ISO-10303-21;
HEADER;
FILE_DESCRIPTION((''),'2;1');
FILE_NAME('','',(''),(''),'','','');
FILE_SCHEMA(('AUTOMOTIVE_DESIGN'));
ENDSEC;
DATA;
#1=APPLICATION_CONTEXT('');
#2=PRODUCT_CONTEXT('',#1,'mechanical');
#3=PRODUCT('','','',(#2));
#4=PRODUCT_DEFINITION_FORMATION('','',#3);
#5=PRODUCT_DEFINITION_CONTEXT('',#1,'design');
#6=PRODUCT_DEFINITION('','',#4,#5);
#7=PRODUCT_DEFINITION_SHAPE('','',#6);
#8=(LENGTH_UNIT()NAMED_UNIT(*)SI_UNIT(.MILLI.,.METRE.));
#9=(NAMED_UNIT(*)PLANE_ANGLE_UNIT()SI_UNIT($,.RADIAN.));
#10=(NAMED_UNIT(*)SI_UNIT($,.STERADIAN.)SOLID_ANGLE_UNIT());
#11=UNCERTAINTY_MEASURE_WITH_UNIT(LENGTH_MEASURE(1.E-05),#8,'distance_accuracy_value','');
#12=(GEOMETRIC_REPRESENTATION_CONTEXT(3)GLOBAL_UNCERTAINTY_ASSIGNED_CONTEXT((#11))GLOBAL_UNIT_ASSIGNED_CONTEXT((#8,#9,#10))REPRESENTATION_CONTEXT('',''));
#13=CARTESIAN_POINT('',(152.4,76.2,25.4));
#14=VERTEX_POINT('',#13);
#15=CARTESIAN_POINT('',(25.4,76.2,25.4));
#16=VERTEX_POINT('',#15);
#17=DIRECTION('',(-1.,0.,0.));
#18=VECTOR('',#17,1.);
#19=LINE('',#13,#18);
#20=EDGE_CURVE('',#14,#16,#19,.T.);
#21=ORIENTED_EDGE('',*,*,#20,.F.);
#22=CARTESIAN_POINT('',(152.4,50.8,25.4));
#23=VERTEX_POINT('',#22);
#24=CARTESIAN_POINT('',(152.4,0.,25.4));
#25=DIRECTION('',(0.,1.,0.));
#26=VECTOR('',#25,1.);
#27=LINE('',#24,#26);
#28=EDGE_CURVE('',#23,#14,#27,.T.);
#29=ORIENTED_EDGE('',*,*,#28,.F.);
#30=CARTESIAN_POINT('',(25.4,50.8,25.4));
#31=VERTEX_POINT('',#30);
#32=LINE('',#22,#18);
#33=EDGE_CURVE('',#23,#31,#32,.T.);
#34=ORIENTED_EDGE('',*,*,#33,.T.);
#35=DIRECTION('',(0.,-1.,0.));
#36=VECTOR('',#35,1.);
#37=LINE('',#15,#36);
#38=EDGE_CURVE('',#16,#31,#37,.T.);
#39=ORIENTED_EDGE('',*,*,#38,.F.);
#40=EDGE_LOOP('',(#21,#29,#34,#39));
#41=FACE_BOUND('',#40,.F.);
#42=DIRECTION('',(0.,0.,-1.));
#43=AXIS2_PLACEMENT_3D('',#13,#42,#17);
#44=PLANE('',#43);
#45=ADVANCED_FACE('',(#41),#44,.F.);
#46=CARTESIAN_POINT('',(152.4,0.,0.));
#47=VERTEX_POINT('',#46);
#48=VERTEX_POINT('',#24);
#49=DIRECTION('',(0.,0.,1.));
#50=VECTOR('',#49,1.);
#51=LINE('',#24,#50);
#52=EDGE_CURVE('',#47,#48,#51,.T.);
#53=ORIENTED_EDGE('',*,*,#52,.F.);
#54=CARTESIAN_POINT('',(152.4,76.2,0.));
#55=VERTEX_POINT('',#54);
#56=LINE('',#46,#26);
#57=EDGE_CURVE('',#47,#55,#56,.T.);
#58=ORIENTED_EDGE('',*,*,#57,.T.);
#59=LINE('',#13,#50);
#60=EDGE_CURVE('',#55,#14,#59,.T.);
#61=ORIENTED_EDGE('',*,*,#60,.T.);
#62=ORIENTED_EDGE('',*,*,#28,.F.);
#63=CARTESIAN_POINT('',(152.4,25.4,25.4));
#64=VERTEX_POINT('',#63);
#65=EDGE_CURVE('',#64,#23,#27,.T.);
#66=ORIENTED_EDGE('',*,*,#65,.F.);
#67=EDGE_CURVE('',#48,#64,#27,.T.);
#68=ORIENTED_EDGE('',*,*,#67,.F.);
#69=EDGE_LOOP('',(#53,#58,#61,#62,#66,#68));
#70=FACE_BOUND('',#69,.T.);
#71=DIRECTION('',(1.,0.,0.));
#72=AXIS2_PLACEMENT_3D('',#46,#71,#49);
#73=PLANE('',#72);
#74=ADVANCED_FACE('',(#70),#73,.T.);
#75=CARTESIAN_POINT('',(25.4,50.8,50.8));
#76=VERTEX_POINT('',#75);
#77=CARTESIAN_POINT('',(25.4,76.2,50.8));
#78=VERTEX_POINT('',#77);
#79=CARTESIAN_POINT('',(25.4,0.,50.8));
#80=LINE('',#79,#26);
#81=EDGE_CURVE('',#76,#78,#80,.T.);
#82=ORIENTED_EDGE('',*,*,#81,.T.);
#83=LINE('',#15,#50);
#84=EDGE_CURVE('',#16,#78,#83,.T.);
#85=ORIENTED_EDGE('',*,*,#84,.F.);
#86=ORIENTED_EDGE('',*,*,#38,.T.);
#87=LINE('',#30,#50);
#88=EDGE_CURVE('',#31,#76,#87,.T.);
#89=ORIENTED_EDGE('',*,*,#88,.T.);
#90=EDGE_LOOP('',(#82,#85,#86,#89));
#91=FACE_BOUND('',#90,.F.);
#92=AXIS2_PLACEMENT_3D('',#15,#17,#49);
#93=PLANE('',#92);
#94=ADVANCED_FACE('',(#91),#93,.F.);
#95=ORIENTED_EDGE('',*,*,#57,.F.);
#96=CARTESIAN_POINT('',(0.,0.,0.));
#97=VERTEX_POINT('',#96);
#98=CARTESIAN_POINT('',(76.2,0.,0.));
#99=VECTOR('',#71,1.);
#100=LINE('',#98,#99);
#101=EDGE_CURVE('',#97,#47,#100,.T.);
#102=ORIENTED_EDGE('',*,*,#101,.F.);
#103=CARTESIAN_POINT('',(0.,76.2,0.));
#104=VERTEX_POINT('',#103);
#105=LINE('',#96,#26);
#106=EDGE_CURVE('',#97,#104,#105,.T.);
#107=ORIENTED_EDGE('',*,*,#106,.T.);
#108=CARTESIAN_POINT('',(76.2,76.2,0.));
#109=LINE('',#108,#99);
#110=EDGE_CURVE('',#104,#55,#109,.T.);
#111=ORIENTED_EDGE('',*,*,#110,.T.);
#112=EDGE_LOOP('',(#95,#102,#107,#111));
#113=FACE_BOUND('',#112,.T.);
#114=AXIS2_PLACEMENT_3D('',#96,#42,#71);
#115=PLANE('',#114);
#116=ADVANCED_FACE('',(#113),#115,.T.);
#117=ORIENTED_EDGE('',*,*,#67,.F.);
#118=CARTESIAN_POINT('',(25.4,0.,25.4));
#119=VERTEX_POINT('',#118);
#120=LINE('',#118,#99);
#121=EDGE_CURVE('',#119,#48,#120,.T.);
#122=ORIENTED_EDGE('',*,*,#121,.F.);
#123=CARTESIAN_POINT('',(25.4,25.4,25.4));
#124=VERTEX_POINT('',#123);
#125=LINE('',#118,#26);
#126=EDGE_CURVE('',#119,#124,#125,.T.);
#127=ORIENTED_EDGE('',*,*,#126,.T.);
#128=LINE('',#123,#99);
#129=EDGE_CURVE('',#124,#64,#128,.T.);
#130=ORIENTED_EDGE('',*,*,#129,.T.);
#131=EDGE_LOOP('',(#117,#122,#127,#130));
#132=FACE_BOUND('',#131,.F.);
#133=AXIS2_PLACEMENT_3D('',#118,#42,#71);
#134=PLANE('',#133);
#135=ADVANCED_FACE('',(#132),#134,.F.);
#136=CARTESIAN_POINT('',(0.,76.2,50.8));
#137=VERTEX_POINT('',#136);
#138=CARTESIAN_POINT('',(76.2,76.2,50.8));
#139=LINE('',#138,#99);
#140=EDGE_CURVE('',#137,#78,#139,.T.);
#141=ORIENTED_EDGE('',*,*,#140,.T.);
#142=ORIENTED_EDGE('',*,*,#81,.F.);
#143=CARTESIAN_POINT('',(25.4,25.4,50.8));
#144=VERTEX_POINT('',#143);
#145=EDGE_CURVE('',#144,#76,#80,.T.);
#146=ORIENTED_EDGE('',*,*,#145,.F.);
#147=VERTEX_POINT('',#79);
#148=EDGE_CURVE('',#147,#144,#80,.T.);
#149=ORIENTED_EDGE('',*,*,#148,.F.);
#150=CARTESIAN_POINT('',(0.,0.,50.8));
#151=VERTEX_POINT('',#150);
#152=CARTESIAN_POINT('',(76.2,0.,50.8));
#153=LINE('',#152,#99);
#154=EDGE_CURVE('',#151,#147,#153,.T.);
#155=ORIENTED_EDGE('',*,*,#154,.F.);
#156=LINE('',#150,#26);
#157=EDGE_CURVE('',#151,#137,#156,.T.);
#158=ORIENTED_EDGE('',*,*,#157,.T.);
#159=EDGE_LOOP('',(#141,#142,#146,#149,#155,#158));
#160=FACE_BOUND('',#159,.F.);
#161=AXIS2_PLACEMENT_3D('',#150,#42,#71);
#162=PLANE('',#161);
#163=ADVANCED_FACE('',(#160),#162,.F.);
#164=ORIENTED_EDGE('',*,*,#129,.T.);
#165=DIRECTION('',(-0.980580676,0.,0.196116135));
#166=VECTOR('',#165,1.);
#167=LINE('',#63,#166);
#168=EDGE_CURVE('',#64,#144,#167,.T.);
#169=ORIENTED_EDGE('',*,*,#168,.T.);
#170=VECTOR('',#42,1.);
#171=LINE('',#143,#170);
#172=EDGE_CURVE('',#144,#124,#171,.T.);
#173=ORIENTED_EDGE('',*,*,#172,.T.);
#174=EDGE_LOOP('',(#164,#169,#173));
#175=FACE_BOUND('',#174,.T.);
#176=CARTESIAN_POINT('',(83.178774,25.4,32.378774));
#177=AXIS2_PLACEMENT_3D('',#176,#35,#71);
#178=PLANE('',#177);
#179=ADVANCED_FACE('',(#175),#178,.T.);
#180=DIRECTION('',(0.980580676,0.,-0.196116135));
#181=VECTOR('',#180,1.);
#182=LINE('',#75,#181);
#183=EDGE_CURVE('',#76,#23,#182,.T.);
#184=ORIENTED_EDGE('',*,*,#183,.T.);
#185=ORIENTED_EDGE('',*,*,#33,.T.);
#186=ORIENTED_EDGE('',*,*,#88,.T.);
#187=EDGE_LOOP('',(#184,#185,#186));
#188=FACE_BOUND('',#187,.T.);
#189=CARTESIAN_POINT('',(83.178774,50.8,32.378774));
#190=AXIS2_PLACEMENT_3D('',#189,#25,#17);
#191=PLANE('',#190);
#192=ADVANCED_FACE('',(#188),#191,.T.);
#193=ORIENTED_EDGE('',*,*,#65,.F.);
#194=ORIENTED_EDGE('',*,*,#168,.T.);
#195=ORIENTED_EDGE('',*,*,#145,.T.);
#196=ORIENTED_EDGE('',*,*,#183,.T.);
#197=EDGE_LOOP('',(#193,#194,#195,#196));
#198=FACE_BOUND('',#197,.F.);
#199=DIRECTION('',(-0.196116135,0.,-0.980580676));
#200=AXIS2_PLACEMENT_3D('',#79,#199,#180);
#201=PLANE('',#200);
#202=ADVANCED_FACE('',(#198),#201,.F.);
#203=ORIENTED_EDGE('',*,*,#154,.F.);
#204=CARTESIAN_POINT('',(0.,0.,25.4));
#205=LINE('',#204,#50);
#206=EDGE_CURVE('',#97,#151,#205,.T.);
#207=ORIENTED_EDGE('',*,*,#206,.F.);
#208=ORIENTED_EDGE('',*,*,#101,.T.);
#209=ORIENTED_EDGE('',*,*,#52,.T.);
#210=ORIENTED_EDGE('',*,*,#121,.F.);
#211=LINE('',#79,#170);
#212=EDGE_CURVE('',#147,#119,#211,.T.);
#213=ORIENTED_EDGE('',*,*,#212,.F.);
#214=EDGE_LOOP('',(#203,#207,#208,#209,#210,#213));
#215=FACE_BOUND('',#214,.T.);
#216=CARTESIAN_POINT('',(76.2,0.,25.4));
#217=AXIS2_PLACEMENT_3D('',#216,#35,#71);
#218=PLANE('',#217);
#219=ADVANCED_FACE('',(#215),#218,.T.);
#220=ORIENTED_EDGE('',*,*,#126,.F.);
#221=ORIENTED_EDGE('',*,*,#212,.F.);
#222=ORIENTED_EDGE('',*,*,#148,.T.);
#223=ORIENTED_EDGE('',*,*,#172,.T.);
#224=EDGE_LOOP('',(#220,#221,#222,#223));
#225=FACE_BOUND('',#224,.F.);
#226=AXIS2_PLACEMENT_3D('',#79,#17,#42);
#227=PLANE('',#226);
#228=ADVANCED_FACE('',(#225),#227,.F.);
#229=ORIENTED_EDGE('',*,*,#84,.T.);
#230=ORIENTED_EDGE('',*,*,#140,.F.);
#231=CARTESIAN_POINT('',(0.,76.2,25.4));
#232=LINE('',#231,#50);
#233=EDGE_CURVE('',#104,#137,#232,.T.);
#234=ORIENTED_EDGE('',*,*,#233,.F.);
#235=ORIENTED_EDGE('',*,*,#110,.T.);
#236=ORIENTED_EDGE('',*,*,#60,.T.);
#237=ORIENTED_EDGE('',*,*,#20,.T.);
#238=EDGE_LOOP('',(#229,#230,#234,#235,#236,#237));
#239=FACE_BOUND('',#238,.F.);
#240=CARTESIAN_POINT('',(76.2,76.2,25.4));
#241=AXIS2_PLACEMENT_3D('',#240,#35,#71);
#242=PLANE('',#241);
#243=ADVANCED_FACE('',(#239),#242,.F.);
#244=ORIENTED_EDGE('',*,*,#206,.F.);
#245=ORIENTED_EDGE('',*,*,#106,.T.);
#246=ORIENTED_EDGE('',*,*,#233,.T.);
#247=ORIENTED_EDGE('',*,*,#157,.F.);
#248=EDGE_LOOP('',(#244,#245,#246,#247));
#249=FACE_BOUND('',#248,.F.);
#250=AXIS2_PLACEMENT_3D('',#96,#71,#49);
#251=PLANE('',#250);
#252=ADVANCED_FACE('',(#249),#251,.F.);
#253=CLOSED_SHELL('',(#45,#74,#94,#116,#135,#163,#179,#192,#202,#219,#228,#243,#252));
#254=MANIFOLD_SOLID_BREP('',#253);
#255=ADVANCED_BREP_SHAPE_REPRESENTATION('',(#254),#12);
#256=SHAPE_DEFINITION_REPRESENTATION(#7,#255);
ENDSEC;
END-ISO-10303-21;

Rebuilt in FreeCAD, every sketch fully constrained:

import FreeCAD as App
import Part
import Sketcher
from FreeCAD import Vector
Q = App.Units.Quantity

doc = App.newDocument("Part")
body = doc.addObject("PartDesign::Body", "Body")

sketch1 = doc.addObject("Sketcher::SketchObject", "Sketch")
body.addObject(sketch1)
sketch1.AttachmentSupport = (doc.XZ_Plane, [""])
sketch1.MapMode = "FlatFace"
sketch1.addGeometry([
    Part.LineSegment(Vector(0, 50.8, 0), Vector(0, 0, 0)),
    Part.LineSegment(Vector(0, 0, 0), Vector(152.4, 0, 0)),
    Part.LineSegment(Vector(152.4, 0, 0), Vector(152.4, 50.8, 0)),
    Part.LineSegment(Vector(152.4, 50.8, 0), Vector(0, 50.8, 0)),
], False)
sketch1.addConstraint([
    Sketcher.Constraint("Coincident", 0, 2, 1, 1),
    Sketcher.Constraint("Coincident", 1, 2, 2, 1),
    Sketcher.Constraint("Coincident", 2, 2, 3, 1),
    Sketcher.Constraint("Coincident", 3, 2, 0, 1),
    Sketcher.Constraint("Vertical", 0),
    Sketcher.Constraint("Horizontal", 1),
    Sketcher.Constraint("Vertical", 2),
    Sketcher.Constraint("Horizontal", 3),
    Sketcher.Constraint("Coincident", 0, 2, -1, 1),
    Sketcher.Constraint("DistanceX", 1, 1, 1, 2, Q("6 in")),
    Sketcher.Constraint("DistanceY", 0, 2, 0, 1, Q("2 in")),
])
pad1 = doc.addObject("PartDesign::Pad", "Pad")
body.addObject(pad1)
pad1.Profile = sketch1
pad1.Length = Q("3 in")
pad1.Reversed = True

sketch2 = doc.addObject("Sketcher::SketchObject", "Sketch001")
body.addObject(sketch2)
sketch2.AttachmentSupport = (doc.XZ_Plane, [""])
sketch2.MapMode = "FlatFace"
sketch2.addGeometry([
    Part.LineSegment(Vector(152.4, 50.8, 0), Vector(25.4, 50.8, 0)),
    Part.LineSegment(Vector(25.4, 50.8, 0), Vector(152.4, 25.4, 0)),
    Part.LineSegment(Vector(152.4, 25.4, 0), Vector(152.4, 50.8, 0)),
], False)
sketch2.addConstraint([
    Sketcher.Constraint("Coincident", 0, 2, 1, 1),
    Sketcher.Constraint("Coincident", 1, 2, 2, 1),
    Sketcher.Constraint("Coincident", 2, 2, 0, 1),
    Sketcher.Constraint("Horizontal", 0),
    Sketcher.Constraint("Vertical", 2),
    Sketcher.Constraint("DistanceX", 0, 2, 0, 1, Q("5 in")),
    Sketcher.Constraint("DistanceY", 2, 1, 2, 2, Q("1 in")),
    Sketcher.Constraint("DistanceX", -1, 1, 0, 2, Q("1 in")),
    Sketcher.Constraint("DistanceY", -1, 1, 0, 2, Q("2 in")),
])
pocket1 = doc.addObject("PartDesign::Pocket", "Pocket")
body.addObject(pocket1)
pocket1.Profile = sketch2
pocket1.Length = Q("3 in")

sketch3 = doc.addObject("Sketcher::SketchObject", "Sketch002")
body.addObject(sketch3)
sketch3.AttachmentSupport = (doc.XZ_Plane, [""])
sketch3.MapMode = "FlatFace"
sketch3.addGeometry([
    Part.LineSegment(Vector(152.4, 25.4, 0), Vector(25.4, 50.8, 0)),
    Part.LineSegment(Vector(25.4, 50.8, 0), Vector(25.4, 25.4, 0)),
    Part.LineSegment(Vector(25.4, 25.4, 0), Vector(152.4, 25.4, 0)),
], False)
sketch3.addConstraint([
    Sketcher.Constraint("Coincident", 0, 2, 1, 1),
    Sketcher.Constraint("Coincident", 1, 2, 2, 1),
    Sketcher.Constraint("Coincident", 2, 2, 0, 1),
    Sketcher.Constraint("Vertical", 1),
    Sketcher.Constraint("Horizontal", 2),
    Sketcher.Constraint("DistanceX", 2, 1, 2, 2, Q("5 in")),
    Sketcher.Constraint("DistanceY", 1, 2, 1, 1, Q("1 in")),
    Sketcher.Constraint("DistanceX", -1, 1, 0, 2, Q("1 in")),
    Sketcher.Constraint("DistanceY", -1, 1, 0, 2, Q("2 in")),
])
pocket2 = doc.addObject("PartDesign::Pocket", "Pocket001")
body.addObject(pocket2)
pocket2.Profile = sketch3
pocket2.Length = Q("1 in")

sketch4 = doc.addObject("Sketcher::SketchObject", "Sketch003")
body.addObject(sketch4)
sketch4.AttachmentSupport = (doc.XZ_Plane, [""])
sketch4.MapMode = "FlatFace"
sketch4.AttachmentOffset = App.Placement(Vector(0, 0, -3 * 25.4), App.Rotation())
sketch4.addGeometry([
    Part.LineSegment(Vector(25.4, 25.4, 0), Vector(25.4, 50.8, 0)),
    Part.LineSegment(Vector(25.4, 50.8, 0), Vector(152.4, 25.4, 0)),
    Part.LineSegment(Vector(152.4, 25.4, 0), Vector(25.4, 25.4, 0)),
], False)
sketch4.addConstraint([
    Sketcher.Constraint("Coincident", 0, 2, 1, 1),
    Sketcher.Constraint("Coincident", 1, 2, 2, 1),
    Sketcher.Constraint("Coincident", 2, 2, 0, 1),
    Sketcher.Constraint("Vertical", 0),
    Sketcher.Constraint("Horizontal", 2),
    Sketcher.Constraint("DistanceX", 2, 2, 2, 1, Q("5 in")),
    Sketcher.Constraint("DistanceY", 0, 1, 0, 2, Q("1 in")),
    Sketcher.Constraint("DistanceX", -1, 1, 0, 2, Q("1 in")),
    Sketcher.Constraint("DistanceY", -1, 1, 0, 2, Q("2 in")),
])
pocket3 = doc.addObject("PartDesign::Pocket", "Pocket002")
body.addObject(pocket3)
pocket3.Profile = sketch4
pocket3.Length = Q("1 in")
pocket3.Reversed = True

doc.recompute()
